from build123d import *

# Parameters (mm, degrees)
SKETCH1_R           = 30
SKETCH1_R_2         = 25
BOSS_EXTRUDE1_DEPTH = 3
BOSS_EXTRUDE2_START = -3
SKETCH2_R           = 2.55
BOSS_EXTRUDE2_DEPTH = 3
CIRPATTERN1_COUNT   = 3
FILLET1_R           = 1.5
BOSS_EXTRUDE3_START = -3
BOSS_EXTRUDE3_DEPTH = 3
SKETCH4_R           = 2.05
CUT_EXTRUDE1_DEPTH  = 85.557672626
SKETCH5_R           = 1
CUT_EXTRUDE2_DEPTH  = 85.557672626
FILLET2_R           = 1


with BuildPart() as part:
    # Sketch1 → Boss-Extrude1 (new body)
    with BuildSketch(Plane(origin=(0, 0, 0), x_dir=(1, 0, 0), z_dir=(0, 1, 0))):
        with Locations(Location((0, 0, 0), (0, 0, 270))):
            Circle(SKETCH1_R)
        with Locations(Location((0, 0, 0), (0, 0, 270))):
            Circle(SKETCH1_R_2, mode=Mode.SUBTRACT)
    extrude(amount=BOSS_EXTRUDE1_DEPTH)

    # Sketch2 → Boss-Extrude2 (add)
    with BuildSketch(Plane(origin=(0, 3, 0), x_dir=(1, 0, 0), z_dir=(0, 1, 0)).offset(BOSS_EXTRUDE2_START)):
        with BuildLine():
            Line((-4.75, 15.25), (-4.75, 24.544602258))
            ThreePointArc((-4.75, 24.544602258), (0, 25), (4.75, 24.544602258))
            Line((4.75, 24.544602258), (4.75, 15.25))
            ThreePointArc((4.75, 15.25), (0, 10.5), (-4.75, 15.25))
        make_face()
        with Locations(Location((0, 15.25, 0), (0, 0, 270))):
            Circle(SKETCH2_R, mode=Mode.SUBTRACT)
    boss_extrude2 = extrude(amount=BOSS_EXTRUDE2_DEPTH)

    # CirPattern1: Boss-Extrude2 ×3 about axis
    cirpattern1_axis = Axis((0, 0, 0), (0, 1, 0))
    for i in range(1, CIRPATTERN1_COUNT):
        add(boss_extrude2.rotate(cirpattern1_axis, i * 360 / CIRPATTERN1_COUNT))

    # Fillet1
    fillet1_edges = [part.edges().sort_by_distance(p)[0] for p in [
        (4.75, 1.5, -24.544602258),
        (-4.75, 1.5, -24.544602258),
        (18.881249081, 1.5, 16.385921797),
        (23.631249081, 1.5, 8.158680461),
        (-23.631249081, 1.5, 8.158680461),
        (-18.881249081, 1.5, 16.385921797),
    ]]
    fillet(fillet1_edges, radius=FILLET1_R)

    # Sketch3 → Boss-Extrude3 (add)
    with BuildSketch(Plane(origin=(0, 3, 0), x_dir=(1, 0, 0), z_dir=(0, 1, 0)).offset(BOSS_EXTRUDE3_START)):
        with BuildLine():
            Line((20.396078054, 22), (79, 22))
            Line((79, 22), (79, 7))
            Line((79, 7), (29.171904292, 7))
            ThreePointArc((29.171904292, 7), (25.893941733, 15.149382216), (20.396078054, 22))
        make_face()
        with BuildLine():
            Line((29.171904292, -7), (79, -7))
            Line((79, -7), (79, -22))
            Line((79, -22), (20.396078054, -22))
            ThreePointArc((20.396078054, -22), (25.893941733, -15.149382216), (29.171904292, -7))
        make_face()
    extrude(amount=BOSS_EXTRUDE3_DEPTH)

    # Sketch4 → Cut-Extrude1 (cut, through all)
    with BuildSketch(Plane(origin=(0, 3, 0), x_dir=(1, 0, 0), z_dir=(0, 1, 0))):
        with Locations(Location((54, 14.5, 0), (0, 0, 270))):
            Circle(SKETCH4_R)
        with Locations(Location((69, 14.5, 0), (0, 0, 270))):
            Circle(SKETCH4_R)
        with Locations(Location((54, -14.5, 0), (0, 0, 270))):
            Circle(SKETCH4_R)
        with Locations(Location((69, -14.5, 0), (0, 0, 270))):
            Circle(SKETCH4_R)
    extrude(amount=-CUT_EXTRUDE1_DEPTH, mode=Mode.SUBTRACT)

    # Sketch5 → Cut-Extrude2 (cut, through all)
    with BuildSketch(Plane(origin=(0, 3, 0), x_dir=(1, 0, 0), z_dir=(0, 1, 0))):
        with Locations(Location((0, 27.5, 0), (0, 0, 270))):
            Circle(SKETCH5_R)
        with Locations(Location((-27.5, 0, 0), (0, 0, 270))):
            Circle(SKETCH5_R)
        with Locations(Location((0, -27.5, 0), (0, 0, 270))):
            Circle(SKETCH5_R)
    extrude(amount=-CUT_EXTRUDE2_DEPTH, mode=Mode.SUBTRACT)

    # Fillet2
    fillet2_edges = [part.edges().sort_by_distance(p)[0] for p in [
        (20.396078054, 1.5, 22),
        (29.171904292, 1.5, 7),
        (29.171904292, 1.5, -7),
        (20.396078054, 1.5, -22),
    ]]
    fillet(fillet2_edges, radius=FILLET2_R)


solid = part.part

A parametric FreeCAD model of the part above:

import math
import FreeCAD as App
import Part
import Sketcher
Q = App.Units.Quantity


def edges_at(feature, points):
    """Names of the edges that pass closest to the given points."""
    edges = feature.Shape.Edges
    near = lambda p: min(range(len(edges)), key=lambda i: edges[i].distToShape(Part.Vertex(*p))[0])
    return sorted({f"Edge{near(p) + 1}" for p in points})

doc = App.newDocument("Part")
params = doc.addObject("Spreadsheet::Sheet", "Params")
for row, (alias, value) in enumerate([
    ("sketch1_diameter", "60 mm"),
    ("sketch1_diameter2", "50 mm"),
    ("pad1_length", "3 mm"),
    ("sketch2_radius", "25 mm"),
    ("sketch2_diameter", "5.1 mm"),
    ("sketch2_radius2", "4.75 mm"),
    ("pad2_length", "3 mm"),
    ("fillet_radius", "1.5 mm"),
    ("sketch3_radius", "30 mm"),
    ("sketch3_height", "15 mm"),
    ("pad3_length", "3 mm"),
    ("sketch4_diameter", "4.1 mm"),
    ("sketch5_diameter", "2 mm"),
    ("fillet2_radius", "1 mm"),
], start=1):
    params.set(f"A{row}", alias)
    params.set(f"B{row}", "=" + value)
    params.setAlias(f"B{row}", alias)

body = doc.addObject("PartDesign::Body", "Body")

sketch1 = doc.addObject("Sketcher::SketchObject", "Sketch")
body.addObject(sketch1)
sketch1.AttachmentSupport = (doc.XZ_Plane, [""])
sketch1.MapMode = "FlatFace"
sketch1.addGeometry(Part.Circle(App.Vector(0, 0, 0), App.Vector(0, 0, 1), 30), False)
sketch1.addGeometry(Part.Circle(App.Vector(0, 0, 0), App.Vector(0, 0, 1), 25), False)
sketch1.addConstraint(Sketcher.Constraint("Coincident", 0, 3, -1, 1))
sketch1.addConstraint(Sketcher.Constraint("Coincident", 1, 3, -1, 1))
sketch1.addConstraint(Sketcher.Constraint("Diameter", 0, Q("60 mm")))
sketch1.addConstraint(Sketcher.Constraint("Diameter", 1, Q("50 mm")))
sketch1.setExpression("Constraints[2]", "Params.sketch1_diameter")
sketch1.setExpression("Constraints[3]", "Params.sketch1_diameter2")
pad1 = doc.addObject("PartDesign::Pad", "Pad")
body.addObject(pad1)
pad1.Profile = sketch1
pad1.setExpression("Length", "Params.pad1_length")
pad1.Reversed = True

sketch2 = doc.addObject("Sketcher::SketchObject", "Sketch001")
body.addObject(sketch2)
sketch2.AttachmentSupport = (doc.XZ_Plane, [""])
sketch2.MapMode = "FlatFace"
sketch2.addGeometry(Part.LineSegment(App.Vector(-4.8, -24.5, 0), App.Vector(-4.8, -15.2, 0)), False)
sketch2.addGeometry(Part.ArcOfCircle(Part.Circle(App.Vector(0, -15.2, 0), App.Vector(0, 0, 1), 4.8), math.radians(0), math.radians(180)), False)
sketch2.addGeometry(Part.LineSegment(App.Vector(4.8, -15.2, 0), App.Vector(4.8, -24.5, 0)), False)
sketch2.addGeometry(Part.ArcOfCircle(Part.Circle(App.Vector(0, 0, 0), App.Vector(0, 0, 1), 25), math.radians(-101), math.radians(-79)), False)
sketch2.addGeometry(Part.Circle(App.Vector(0, -15.2, 0), App.Vector(0, 0, 1), 2.5), False)
sketch2.addConstraint(Sketcher.Constraint("Tangent", 0, 2, 1, 2))
sketch2.addConstraint(Sketcher.Constraint("Tangent", 1, 1, 2, 1))
sketch2.addConstraint(Sketcher.Constraint("Coincident", 2, 2, 3, 2))
sketch2.addConstraint(Sketcher.Constraint("Coincident", 3, 1, 0, 1))
sketch2.addConstraint(Sketcher.Constraint("Vertical", 0))
sketch2.addConstraint(Sketcher.Constraint("Vertical", 2))
sketch2.addConstraint(Sketcher.Constraint("Coincident", 3, 3, -1, 1))
sketch2.addConstraint(Sketcher.Constraint("Coincident", 4, 3, 1, 3))
sketch2.addConstraint(Sketcher.Constraint("PointOnObject", 1, 3, -2))
sketch2.addConstraint(Sketcher.Constraint("Radius", 3, Q("25 mm")))
sketch2.addConstraint(Sketcher.Constraint("Diameter", 4, Q("5.1 mm")))
sketch2.addConstraint(Sketcher.Constraint("Radius", 1, Q("4.75 mm")))
sketch2.addConstraint(Sketcher.Constraint("DistanceY", 1, 3, -1, 1, Q("15.25 mm")))
sketch2.setExpression("Constraints[9]", "Params.sketch2_radius")
sketch2.setExpression("Constraints[10]", "Params.sketch2_diameter")
sketch2.setExpression("Constraints[11]", "Params.sketch2_radius2")
pad2 = doc.addObject("PartDesign::Pad", "Pad001")
body.addObject(pad2)
pad2.Profile = sketch2
pad2.setExpression("Length", "Params.pad2_length")
pad2.Reversed = True
doc.recompute()

polarpattern = doc.addObject("PartDesign::PolarPattern", "PolarPattern")
body.addObject(polarpattern)
polarpattern.Originals = [pad2]
polarpattern.Axis = (doc.Y_Axis, [""])
polarpattern.Angle = 360
polarpattern.Occurrences = 3
body.Tip = polarpattern
doc.recompute()

fillet = doc.addObject("PartDesign::Fillet", "Fillet")
body.addObject(fillet)
fillet.Base = (polarpattern, edges_at(polarpattern, [
    (4.75, 1.5, -24.545),
    (-4.75, 1.5, -24.545),
    (18.881, 1.5, 16.386),
    (23.631, 1.5, 8.159),
    (-23.631, 1.5, 8.159),
    (-18.881, 1.5, 16.386),
]))
fillet.setExpression("Radius", "Params.fillet_radius")

sketch3 = doc.addObject("Sketcher::SketchObject", "Sketch002")
body.addObject(sketch3)
sketch3.AttachmentSupport = (doc.XZ_Plane, [""])
sketch3.MapMode = "FlatFace"
sketch3.addGeometry(Part.LineSegment(App.Vector(79, -22, 0), App.Vector(20, -22, 0)), False)
sketch3.addGeometry(Part.ArcOfCircle(Part.Circle(App.Vector(0, 0, 0), App.Vector(0, 0, 1), 30), math.radians(-47), math.radians(-13)), False)
sketch3.addGeometry(Part.LineSegment(App.Vector(29, -7, 0), App.Vector(79, -7, 0)), False)
sketch3.addGeometry(Part.LineSegment(App.Vector(79, -7, 0), App.Vector(79, -22, 0)), False)
sketch3.addGeometry(Part.LineSegment(App.Vector(79, 7, 0), App.Vector(29, 7, 0)), False)
sketch3.addGeometry(Part.ArcOfCircle(Part.Circle(App.Vector(0, 0, 0), App.Vector(0, 0, 1), 30), math.radians(13), math.radians(47)), False)
sketch3.addGeometry(Part.LineSegment(App.Vector(20, 22, 0), App.Vector(79, 22, 0)), False)
sketch3.addGeometry(Part.LineSegment(App.Vector(79, 22, 0), App.Vector(79, 7, 0)), False)
sketch3.addConstraint(Sketcher.Constraint("Coincident", 0, 2, 1, 1))
sketch3.addConstraint(Sketcher.Constraint("Coincident", 1, 2, 2, 1))
sketch3.addConstraint(Sketcher.Constraint("Coincident", 2, 2, 3, 1))
sketch3.addConstraint(Sketcher.Constraint("Coincident", 3, 2, 0, 1))
sketch3.addConstraint(Sketcher.Constraint("Coincident", 4, 2, 5, 1))
sketch3.addConstraint(Sketcher.Constraint("Coincident", 5, 2, 6, 1))
sketch3.addConstraint(Sketcher.Constraint("Coincident", 6, 2, 7, 1))
sketch3.addConstraint(Sketcher.Constraint("Coincident", 7, 2, 4, 1))
sketch3.addConstraint(Sketcher.Constraint("Horizontal", 0))
sketch3.addConstraint(Sketcher.Constraint("Horizontal", 2))
sketch3.addConstraint(Sketcher.Constraint("Vertical", 3))
sketch3.addConstraint(Sketcher.Constraint("Horizontal", 4))
sketch3.addConstraint(Sketcher.Constraint("Horizontal", 6))
sketch3.addConstraint(Sketcher.Constraint("Vertical", 7))
sketch3.addConstraint(Sketcher.Constraint("Coincident", 1, 3, -1, 1))
sketch3.addConstraint(Sketcher.Constraint("Coincident", 5, 3, -1, 1))
sketch3.addConstraint(Sketcher.Constraint("Equal", 1, 5))
sketch3.addConstraint(Sketcher.Constraint("Symmetric", 3, 2, 6, 2, -1))
sketch3.addConstraint(Sketcher.Constraint("Vertical", 1, 2, 4, 2))
sketch3.addConstraint(Sketcher.Constraint("Radius", 1, Q("30 mm")))
sketch3.addConstraint(Sketcher.Constraint("DistanceY", 3, 2, 3, 1, Q("15 mm")))
sketch3.addConstraint(Sketcher.Constraint("DistanceY", 0, 2, -1, 1, Q("22 mm")))
sketch3.addConstraint(Sketcher.Constraint("DistanceX", -1, 1, 2, 2, Q("79 mm")))
sketch3.setExpression("Constraints[19]", "Params.sketch3_radius")
sketch3.setExpression("Constraints[20]", "Params.sketch3_height")
pad3 = doc.addObject("PartDesign::Pad", "Pad002")
body.addObject(pad3)
pad3.Profile = sketch3
pad3.setExpression("Length", "Params.pad3_length")
pad3.Reversed = True

sketch4 = doc.addObject("Sketcher::SketchObject", "Sketch003")
body.addObject(sketch4)
sketch4.AttachmentSupport = (doc.XZ_Plane, [""])
sketch4.MapMode = "FlatFace"
sketch4.AttachmentOffset = App.Placement(App.Vector(0, 0, -3), App.Rotation())
sketch4.addGeometry(Part.Circle(App.Vector(54, -14.5, 0), App.Vector(0, 0, 1), 2), False)
sketch4.addGeometry(Part.Circle(App.Vector(69, -14.5, 0), App.Vector(0, 0, 1), 2), False)
sketch4.addGeometry(Part.Circle(App.Vector(54, 14.5, 0), App.Vector(0, 0, 1), 2), False)
sketch4.addGeometry(Part.Circle(App.Vector(69, 14.5, 0), App.Vector(0, 0, 1), 2), False)
sketch4.addConstraint(Sketcher.Constraint("Equal", 0, 1))
sketch4.addConstraint(Sketcher.Constraint("Equal", 1, 2))
sketch4.addConstraint(Sketcher.Constraint("Equal", 2, 3))
sketch4.addConstraint(Sketcher.Constraint("Symmetric", 0, 3, 2, 3, -1))
sketch4.addConstraint(Sketcher.Constraint("Symmetric", 1, 3, 3, 3, -1))
sketch4.addConstraint(Sketcher.Constraint("Horizontal", 0, 3, 1, 3))
sketch4.addConstraint(Sketcher.Constraint("Diameter", 0, Q("4.1 mm")))
sketch4.addConstraint(Sketcher.Constraint("DistanceX", -1, 1, 0, 3, Q("54 mm")))
sketch4.addConstraint(Sketcher.Constraint("DistanceX", -1, 1, 1, 3, Q("69 mm")))
sketch4.addConstraint(Sketcher.Constraint("DistanceY", 0, 3, 2, 3, Q("29 mm")))
sketch4.setExpression("Constraints[6]", "Params.sketch4_diameter")
pocket1 = doc.addObject("PartDesign::Pocket", "Pocket")
body.addObject(pocket1)
pocket1.Profile = sketch4
pocket1.Type = "ThroughAll"
pocket1.Reversed = True

sketch5 = doc.addObject("Sketcher::SketchObject", "Sketch004")
body.addObject(sketch5)
sketch5.AttachmentSupport = (doc.XZ_Plane, [""])
sketch5.MapMode = "FlatFace"
sketch5.AttachmentOffset = App.Placement(App.Vector(0, 0, -3), App.Rotation())
sketch5.addGeometry(Part.Circle(App.Vector(0, -27.5, 0), App.Vector(0, 0, 1), 1), False)
sketch5.addGeometry(Part.Circle(App.Vector(-27.5, 0, 0), App.Vector(0, 0, 1), 1), False)
sketch5.addGeometry(Part.Circle(App.Vector(0, 27.5, 0), App.Vector(0, 0, 1), 1), False)
sketch5.addConstraint(Sketcher.Constraint("Equal", 0, 1))
sketch5.addConstraint(Sketcher.Constraint("Equal", 1, 2))
sketch5.addConstraint(Sketcher.Constraint("Symmetric", 0, 3, 2, 3, -1, 1))
sketch5.addConstraint(Sketcher.Constraint("PointOnObject", 0, 3, -2))
sketch5.addConstraint(Sketcher.Constraint("PointOnObject", 1, 3, -1))
sketch5.addConstraint(Sketcher.Constraint("Diameter", 0, Q("2 mm")))
sketch5.addConstraint(Sketcher.Constraint("DistanceY", 0, 3, 2, 3, Q("55 mm")))
sketch5.addConstraint(Sketcher.Constraint("DistanceX", 1, 3, -1, 1, Q("27.5 mm")))
sketch5.setExpression("Constraints[5]", "Params.sketch5_diameter")
pocket2 = doc.addObject("PartDesign::Pocket", "Pocket001")
body.addObject(pocket2)
pocket2.Profile = sketch5
pocket2.Type = "ThroughAll"
pocket2.Reversed = True
doc.recompute()

fillet2 = doc.addObject("PartDesign::Fillet", "Fillet001")
body.addObject(fillet2)
fillet2.Base = (pocket2, edges_at(pocket2, [
    (20.396, 1.5, 22),
    (29.172, 1.5, 7),
    (29.172, 1.5, -7),
    (20.396, 1.5, -22),
]))
fillet2.setExpression("Radius", "Params.fillet2_radius")

doc.recompute()
